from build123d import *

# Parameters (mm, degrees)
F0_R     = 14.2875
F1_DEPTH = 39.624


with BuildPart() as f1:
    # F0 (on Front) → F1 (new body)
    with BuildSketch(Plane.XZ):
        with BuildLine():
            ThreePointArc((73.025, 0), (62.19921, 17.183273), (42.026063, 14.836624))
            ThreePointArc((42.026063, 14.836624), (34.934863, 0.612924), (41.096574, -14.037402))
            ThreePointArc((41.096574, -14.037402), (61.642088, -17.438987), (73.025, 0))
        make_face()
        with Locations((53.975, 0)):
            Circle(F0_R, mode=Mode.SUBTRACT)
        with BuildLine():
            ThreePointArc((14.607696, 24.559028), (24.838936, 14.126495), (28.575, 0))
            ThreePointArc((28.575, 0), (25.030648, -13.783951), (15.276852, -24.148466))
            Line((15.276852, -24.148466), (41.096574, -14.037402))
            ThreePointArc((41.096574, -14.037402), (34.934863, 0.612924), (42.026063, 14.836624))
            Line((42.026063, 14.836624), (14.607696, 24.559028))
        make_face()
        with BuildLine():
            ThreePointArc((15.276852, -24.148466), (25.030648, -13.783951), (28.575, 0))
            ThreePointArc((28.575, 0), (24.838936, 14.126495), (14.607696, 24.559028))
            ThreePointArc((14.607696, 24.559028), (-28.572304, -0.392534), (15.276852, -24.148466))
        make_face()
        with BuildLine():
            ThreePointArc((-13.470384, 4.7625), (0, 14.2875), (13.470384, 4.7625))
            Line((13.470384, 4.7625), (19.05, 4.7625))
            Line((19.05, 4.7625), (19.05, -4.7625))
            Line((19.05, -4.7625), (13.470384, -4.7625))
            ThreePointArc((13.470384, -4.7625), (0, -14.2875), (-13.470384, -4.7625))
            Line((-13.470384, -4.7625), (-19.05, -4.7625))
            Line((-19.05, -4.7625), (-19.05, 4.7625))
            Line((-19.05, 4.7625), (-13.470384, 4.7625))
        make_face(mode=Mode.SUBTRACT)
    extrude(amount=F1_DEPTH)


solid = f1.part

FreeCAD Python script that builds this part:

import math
import FreeCAD as App
import Part
import Sketcher

V = App.Vector
Q = App.Units.Quantity

doc = App.newDocument("Part")
body = doc.addObject("PartDesign::Body", "Body")

# Sketch on XZ plane
sketch1 = doc.addObject("Sketcher::SketchObject", "Sketch")
body.addObject(sketch1)
sketch1.AttachmentSupport = (doc.XZ_Plane, [""])
sketch1.MapMode = "FlatFace"
sketch1.addGeometry([
    Part.ArcOfCircle(Part.Circle(V(54, 0, 0), V(0, 0, 1), 19), math.radians(0), math.radians(129)),  # 0
    Part.LineSegment(V(42, 15, 0), V(15, 25, 0)),  # 1
    Part.ArcOfCircle(Part.Circle(V(0, 0, 0), V(0, 0, 1), 29), math.radians(59), math.radians(302)),  # 2
    Part.LineSegment(V(15, -24, 0), V(41, -14, 0)),  # 3
    Part.ArcOfCircle(Part.Circle(V(54, 0, 0), V(0, 0, 1), 19), math.radians(-133), math.radians(0)),  # 4
    Part.LineSegment(V(-19, 5, 0), V(-13, 5, 0)),  # 5
    Part.ArcOfCircle(Part.Circle(V(0, 0, 0), V(0, 0, 1), 14), math.radians(19), math.radians(161)),  # 6
    Part.LineSegment(V(13, 5, 0), V(19, 5, 0)),  # 7
    Part.LineSegment(V(19, 5, 0), V(19, -5, 0)),  # 8
    Part.LineSegment(V(19, -5, 0), V(13, -5, 0)),  # 9
    Part.ArcOfCircle(Part.Circle(V(0, 0, 0), V(0, 0, 1), 14), math.radians(-161), math.radians(-19)),  # 10
    Part.LineSegment(V(-13, -5, 0), V(-19, -5, 0)),  # 11
    Part.LineSegment(V(-19, -5, 0), V(-19, 5, 0)),  # 12
    Part.Circle(V(54, 0, 0), V(0, 0, 1), 14),  # 13
], False)
sketch1.addConstraint([
    Sketcher.Constraint("Coincident", 0, 2, 1, 1),
    Sketcher.Constraint("Coincident", 1, 2, 2, 1),
    Sketcher.Constraint("Coincident", 2, 2, 3, 1),
    Sketcher.Constraint("Coincident", 3, 2, 4, 1),
    Sketcher.Constraint("Tangent", 4, 2, 0, 1),
    Sketcher.Constraint("Coincident", 5, 2, 6, 2),
    Sketcher.Constraint("Coincident", 6, 1, 7, 1),
    Sketcher.Constraint("Coincident", 7, 2, 8, 1),
    Sketcher.Constraint("Coincident", 8, 2, 9, 1),
    Sketcher.Constraint("Coincident", 9, 2, 10, 2),
    Sketcher.Constraint("Coincident", 10, 1, 11, 1),
    Sketcher.Constraint("Coincident", 11, 2, 12, 1),
    Sketcher.Constraint("Coincident", 12, 2, 5, 1),
    Sketcher.Constraint("Horizontal", 5),
    Sketcher.Constraint("Horizontal", 7),
    Sketcher.Constraint("Vertical", 8),
    Sketcher.Constraint("Horizontal", 9),
    Sketcher.Constraint("Horizontal", 11),
    Sketcher.Constraint("Vertical", 12),
    Sketcher.Constraint("Coincident", 2, 3, -1, 1),
    Sketcher.Constraint("Coincident", 6, 3, -1, 1),
    Sketcher.Constraint("Coincident", 10, 3, -1, 1),
    Sketcher.Constraint("Coincident", 13, 3, 0, 3),
    Sketcher.Constraint("Equal", 0, 4),
    Sketcher.Constraint("Equal", 6, 10),
    Sketcher.Constraint("Equal", 10, 13),
    Sketcher.Constraint("Symmetric", 7, 2, 11, 2, -1, 1),
    Sketcher.Constraint("PointOnObject", 0, 3, -1),
    Sketcher.Constraint("PointOnObject", 4, 2, -1),
    Sketcher.Constraint("Horizontal", 5, 2, 6, 1),
    Sketcher.Constraint("Horizontal", 9, 2, 10, 1),
    Sketcher.Constraint("Radius", 0, Q("0.75 in")),
    Sketcher.Constraint("Diameter", 13, Q("1.125 in")),
    Sketcher.Constraint("Radius", 2, Q("1.125 in")),
    Sketcher.Constraint("DistanceY", 8, 2, 8, 1, Q("0.375 in")),
    Sketcher.Constraint("DistanceX", -1, 1, 7, 2, Q("0.75 in")),
    Sketcher.Constraint("DistanceX", -1, 1, 0, 3, Q("2.125 in")),
    Sketcher.Constraint("Distance", 1, Q("29.091098 mm")),
    Sketcher.Constraint("DistanceY", 3, 2, 4, 3, Q("14.037402 mm")),
    Sketcher.Constraint("DistanceY", -1, 1, 1, 2, Q("24.559028 mm")),
    Sketcher.Constraint("DistanceX", 2, 2, 3, 2, Q("25.819722 mm")),
])
pad1 = doc.addObject("PartDesign::Pad", "Pad")
body.addObject(pad1)
pad1.Profile = sketch1
pad1.Length = Q("1.56 in")

doc.recompute()
